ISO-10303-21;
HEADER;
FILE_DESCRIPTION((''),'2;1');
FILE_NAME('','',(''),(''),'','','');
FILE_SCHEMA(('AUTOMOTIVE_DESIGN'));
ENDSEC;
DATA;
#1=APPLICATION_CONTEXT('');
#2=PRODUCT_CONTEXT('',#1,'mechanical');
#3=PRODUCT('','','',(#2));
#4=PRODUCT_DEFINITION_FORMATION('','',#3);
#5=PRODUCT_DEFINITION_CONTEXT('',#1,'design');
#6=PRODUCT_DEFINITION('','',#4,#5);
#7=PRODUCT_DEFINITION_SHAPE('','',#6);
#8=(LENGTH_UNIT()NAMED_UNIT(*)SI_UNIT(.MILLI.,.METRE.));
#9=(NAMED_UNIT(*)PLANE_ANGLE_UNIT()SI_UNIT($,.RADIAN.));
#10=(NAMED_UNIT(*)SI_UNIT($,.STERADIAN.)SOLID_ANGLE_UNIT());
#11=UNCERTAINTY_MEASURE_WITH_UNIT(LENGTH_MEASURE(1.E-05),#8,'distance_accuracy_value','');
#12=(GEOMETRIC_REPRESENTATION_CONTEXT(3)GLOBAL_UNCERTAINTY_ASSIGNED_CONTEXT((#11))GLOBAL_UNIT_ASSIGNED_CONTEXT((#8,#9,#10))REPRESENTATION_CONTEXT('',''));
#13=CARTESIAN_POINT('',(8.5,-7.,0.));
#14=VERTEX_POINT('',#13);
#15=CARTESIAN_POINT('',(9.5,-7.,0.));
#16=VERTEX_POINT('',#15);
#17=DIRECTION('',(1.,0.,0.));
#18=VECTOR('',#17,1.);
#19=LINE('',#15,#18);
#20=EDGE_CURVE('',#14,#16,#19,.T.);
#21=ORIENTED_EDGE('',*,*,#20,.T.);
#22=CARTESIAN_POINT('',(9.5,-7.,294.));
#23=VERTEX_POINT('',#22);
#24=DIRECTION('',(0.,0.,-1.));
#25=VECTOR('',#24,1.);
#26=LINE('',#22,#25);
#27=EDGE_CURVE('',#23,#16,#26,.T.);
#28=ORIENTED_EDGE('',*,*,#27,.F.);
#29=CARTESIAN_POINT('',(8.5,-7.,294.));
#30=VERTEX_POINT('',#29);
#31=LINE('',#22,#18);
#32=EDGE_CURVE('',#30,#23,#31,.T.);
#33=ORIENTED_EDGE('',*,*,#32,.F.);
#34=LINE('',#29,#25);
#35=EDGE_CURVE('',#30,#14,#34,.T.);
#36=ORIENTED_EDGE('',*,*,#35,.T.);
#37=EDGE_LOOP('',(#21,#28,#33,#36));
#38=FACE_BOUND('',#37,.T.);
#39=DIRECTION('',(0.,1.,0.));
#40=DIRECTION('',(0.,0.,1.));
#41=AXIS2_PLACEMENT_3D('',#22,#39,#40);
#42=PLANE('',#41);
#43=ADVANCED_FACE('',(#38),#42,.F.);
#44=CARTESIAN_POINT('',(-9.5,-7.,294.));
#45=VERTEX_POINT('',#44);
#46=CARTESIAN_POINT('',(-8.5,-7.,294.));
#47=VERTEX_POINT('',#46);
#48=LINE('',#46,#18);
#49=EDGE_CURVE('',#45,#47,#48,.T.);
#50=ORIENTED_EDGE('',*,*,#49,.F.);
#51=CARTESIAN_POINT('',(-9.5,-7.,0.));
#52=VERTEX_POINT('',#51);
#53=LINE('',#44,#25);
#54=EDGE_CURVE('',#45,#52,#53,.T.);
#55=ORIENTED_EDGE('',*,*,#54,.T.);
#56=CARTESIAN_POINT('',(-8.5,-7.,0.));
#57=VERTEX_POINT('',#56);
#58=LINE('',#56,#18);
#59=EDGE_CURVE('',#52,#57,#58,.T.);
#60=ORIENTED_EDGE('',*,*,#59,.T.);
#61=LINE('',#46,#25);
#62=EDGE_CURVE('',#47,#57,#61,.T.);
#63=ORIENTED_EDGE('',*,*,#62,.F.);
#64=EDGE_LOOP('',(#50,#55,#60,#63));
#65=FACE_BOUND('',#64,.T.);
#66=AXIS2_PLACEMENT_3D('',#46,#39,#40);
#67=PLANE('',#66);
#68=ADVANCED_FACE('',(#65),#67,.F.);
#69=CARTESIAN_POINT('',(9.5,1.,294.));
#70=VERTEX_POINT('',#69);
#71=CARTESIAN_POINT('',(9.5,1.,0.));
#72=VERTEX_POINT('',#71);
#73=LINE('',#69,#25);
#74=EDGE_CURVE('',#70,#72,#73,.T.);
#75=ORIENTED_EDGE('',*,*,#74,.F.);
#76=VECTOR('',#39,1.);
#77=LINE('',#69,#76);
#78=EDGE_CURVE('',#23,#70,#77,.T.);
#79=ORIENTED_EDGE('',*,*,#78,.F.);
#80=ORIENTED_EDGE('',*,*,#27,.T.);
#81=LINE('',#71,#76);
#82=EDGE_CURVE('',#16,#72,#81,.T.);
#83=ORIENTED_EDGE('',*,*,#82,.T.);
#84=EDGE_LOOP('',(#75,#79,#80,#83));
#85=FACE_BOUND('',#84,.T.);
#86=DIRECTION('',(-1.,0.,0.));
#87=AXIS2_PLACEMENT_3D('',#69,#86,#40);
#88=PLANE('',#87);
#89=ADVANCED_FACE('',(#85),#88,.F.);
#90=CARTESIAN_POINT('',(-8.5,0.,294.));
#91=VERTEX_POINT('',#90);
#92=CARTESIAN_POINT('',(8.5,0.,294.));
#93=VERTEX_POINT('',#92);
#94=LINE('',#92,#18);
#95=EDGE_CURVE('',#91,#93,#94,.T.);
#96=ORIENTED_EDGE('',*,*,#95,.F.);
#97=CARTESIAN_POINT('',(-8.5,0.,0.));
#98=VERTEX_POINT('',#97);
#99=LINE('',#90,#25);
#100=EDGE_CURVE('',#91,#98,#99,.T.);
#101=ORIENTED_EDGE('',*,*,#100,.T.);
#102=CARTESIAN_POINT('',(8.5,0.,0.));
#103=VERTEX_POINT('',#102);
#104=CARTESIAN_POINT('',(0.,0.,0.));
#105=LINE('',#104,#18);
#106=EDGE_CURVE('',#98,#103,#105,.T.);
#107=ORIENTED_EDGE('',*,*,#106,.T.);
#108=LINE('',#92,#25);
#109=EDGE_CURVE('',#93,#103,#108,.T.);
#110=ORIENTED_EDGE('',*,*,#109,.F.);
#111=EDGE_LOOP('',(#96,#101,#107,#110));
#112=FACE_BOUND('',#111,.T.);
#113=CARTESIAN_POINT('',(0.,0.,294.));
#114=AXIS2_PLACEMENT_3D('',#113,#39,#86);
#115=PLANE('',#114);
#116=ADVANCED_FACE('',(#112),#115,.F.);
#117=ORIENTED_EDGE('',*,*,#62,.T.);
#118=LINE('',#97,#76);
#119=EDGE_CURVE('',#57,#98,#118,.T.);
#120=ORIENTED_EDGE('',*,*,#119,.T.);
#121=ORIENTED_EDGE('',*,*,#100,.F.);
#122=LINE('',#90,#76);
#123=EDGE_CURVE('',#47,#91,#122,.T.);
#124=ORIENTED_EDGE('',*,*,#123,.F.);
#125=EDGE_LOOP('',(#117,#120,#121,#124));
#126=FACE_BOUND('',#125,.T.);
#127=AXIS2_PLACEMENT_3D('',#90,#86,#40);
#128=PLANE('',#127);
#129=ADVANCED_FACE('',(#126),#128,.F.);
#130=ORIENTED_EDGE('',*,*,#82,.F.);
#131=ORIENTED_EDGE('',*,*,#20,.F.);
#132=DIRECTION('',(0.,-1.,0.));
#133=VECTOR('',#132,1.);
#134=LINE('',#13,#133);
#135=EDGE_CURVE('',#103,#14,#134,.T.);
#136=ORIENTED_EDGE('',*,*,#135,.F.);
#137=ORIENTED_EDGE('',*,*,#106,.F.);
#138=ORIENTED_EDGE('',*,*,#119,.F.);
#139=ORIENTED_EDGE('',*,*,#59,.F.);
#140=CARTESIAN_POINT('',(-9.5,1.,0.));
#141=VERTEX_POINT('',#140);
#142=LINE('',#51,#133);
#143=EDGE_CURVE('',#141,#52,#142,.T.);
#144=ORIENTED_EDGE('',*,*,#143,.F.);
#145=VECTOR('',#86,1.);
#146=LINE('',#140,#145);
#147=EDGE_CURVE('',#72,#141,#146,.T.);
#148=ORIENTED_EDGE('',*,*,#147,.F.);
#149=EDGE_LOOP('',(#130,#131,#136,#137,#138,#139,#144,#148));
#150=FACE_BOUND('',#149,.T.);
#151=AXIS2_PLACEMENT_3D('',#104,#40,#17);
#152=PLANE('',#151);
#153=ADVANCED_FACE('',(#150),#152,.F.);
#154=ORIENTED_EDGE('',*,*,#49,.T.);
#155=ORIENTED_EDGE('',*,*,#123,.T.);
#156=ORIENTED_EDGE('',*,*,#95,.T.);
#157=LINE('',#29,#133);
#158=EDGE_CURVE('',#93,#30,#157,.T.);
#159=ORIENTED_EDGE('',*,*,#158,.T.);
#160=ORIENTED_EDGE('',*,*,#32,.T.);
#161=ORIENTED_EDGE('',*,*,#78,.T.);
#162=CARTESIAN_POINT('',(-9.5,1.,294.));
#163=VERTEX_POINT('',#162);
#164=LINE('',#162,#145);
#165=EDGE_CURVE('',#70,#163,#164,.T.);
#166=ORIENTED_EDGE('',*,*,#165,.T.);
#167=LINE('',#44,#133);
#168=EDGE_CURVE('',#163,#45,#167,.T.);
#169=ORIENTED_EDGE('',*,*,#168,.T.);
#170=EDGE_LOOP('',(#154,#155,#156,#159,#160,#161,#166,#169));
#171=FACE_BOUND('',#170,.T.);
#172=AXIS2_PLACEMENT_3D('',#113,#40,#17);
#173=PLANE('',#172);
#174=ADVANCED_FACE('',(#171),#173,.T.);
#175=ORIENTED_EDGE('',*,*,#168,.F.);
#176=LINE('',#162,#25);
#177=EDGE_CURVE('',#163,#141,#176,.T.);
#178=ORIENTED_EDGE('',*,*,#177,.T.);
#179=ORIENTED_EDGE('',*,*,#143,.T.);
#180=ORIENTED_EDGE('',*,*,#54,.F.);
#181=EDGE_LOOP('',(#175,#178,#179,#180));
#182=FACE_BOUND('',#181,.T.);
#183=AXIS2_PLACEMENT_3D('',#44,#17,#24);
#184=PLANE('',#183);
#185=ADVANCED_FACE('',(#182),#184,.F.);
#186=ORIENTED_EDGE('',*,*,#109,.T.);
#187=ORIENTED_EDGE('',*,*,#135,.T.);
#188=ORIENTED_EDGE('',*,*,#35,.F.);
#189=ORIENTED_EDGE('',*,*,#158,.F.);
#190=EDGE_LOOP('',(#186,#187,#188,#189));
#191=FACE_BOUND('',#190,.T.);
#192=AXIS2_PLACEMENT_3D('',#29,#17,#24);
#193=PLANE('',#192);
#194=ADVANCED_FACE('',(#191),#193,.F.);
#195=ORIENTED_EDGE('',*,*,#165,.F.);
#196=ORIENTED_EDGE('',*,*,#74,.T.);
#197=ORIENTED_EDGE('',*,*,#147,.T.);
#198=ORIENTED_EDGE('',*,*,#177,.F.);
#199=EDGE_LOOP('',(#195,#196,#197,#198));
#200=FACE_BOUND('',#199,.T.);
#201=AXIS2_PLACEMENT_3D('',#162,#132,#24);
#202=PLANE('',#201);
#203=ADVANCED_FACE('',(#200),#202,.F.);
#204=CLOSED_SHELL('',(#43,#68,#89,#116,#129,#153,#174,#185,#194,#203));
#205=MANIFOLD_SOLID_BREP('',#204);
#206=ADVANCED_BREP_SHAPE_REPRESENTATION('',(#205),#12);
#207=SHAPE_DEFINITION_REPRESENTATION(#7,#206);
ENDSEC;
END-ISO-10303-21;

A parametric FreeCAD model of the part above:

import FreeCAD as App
import Part
import Sketcher
from FreeCAD import Vector
Q = App.Units.Quantity


def add_polygon(sketch, points):
    """Adds a closed chain of lines whose ends are joined by coincident constraints."""
    first, n = sketch.GeometryCount, len(points)
    for a, b in zip(points, points[1:] + points[:1]):
        sketch.addGeometry(Part.LineSegment(App.Vector(*a, 0), App.Vector(*b, 0)), False)
    for i in range(n):
        sketch.addConstraint(Sketcher.Constraint("Coincident", first + i, 2, first + (i + 1) % n, 1))

doc = App.newDocument("Part")
params = doc.addObject("Spreadsheet::Sheet", "Params")
for row, (alias, value) in enumerate([
    ("sketch1_width", "17 mm"),
    ("sketch1_width2", "1 mm"),
    ("sketch1_height", "7 mm"),
    ("sketch1_height2", "8 mm"),
    ("pad1_length", "294 mm"),
], start=1):
    params.set(f"A{row}", alias)
    params.set(f"B{row}", "=" + value)
    params.setAlias(f"B{row}", alias)

body = doc.addObject("PartDesign::Body", "Body")

sketch1 = doc.addObject("Sketcher::SketchObject", "Sketch")
body.addObject(sketch1)
sketch1.AttachmentSupport = (doc.XY_Plane, [""])
sketch1.MapMode = "FlatFace"
add_polygon(sketch1, [(-8.5, 0), (8.5, 0), (8.5, -7), (9.5, -7), (9.5, 1), (-9.5, 1), (-9.5, -7), (-8.5, -7)])
sketch1.addConstraint([
    Sketcher.Constraint("Horizontal", 0),
    Sketcher.Constraint("Vertical", 1),
    Sketcher.Constraint("Horizontal", 2),
    Sketcher.Constraint("Vertical", 3),
    Sketcher.Constraint("Horizontal", 4),
    Sketcher.Constraint("Vertical", 5),
    Sketcher.Constraint("Horizontal", 6),
    Sketcher.Constraint("Vertical", 7),
    Sketcher.Constraint("Symmetric", 0, 2, 7, 2, -1, 1),
    Sketcher.Constraint("Symmetric", 2, 2, 5, 2, -2),
    Sketcher.Constraint("DistanceX", 0, 1, 0, 2, Q("17 mm")),
    Sketcher.Constraint("DistanceX", 2, 1, 2, 2, Q("1 mm")),
    Sketcher.Constraint("DistanceY", 1, 2, 1, 1, Q("7 mm")),
    Sketcher.Constraint("DistanceY", 3, 1, 3, 2, Q("8 mm")),
])
sketch1.setExpression("Constraints[18]", "Params.sketch1_width")
sketch1.setExpression("Constraints[19]", "Params.sketch1_width2")
sketch1.setExpression("Constraints[20]", "Params.sketch1_height")
sketch1.setExpression("Constraints[21]", "Params.sketch1_height2")
pad1 = doc.addObject("PartDesign::Pad", "Pad")
body.addObject(pad1)
pad1.Profile = sketch1
pad1.setExpression("Length", "Params.pad1_length")

doc.recompute()
